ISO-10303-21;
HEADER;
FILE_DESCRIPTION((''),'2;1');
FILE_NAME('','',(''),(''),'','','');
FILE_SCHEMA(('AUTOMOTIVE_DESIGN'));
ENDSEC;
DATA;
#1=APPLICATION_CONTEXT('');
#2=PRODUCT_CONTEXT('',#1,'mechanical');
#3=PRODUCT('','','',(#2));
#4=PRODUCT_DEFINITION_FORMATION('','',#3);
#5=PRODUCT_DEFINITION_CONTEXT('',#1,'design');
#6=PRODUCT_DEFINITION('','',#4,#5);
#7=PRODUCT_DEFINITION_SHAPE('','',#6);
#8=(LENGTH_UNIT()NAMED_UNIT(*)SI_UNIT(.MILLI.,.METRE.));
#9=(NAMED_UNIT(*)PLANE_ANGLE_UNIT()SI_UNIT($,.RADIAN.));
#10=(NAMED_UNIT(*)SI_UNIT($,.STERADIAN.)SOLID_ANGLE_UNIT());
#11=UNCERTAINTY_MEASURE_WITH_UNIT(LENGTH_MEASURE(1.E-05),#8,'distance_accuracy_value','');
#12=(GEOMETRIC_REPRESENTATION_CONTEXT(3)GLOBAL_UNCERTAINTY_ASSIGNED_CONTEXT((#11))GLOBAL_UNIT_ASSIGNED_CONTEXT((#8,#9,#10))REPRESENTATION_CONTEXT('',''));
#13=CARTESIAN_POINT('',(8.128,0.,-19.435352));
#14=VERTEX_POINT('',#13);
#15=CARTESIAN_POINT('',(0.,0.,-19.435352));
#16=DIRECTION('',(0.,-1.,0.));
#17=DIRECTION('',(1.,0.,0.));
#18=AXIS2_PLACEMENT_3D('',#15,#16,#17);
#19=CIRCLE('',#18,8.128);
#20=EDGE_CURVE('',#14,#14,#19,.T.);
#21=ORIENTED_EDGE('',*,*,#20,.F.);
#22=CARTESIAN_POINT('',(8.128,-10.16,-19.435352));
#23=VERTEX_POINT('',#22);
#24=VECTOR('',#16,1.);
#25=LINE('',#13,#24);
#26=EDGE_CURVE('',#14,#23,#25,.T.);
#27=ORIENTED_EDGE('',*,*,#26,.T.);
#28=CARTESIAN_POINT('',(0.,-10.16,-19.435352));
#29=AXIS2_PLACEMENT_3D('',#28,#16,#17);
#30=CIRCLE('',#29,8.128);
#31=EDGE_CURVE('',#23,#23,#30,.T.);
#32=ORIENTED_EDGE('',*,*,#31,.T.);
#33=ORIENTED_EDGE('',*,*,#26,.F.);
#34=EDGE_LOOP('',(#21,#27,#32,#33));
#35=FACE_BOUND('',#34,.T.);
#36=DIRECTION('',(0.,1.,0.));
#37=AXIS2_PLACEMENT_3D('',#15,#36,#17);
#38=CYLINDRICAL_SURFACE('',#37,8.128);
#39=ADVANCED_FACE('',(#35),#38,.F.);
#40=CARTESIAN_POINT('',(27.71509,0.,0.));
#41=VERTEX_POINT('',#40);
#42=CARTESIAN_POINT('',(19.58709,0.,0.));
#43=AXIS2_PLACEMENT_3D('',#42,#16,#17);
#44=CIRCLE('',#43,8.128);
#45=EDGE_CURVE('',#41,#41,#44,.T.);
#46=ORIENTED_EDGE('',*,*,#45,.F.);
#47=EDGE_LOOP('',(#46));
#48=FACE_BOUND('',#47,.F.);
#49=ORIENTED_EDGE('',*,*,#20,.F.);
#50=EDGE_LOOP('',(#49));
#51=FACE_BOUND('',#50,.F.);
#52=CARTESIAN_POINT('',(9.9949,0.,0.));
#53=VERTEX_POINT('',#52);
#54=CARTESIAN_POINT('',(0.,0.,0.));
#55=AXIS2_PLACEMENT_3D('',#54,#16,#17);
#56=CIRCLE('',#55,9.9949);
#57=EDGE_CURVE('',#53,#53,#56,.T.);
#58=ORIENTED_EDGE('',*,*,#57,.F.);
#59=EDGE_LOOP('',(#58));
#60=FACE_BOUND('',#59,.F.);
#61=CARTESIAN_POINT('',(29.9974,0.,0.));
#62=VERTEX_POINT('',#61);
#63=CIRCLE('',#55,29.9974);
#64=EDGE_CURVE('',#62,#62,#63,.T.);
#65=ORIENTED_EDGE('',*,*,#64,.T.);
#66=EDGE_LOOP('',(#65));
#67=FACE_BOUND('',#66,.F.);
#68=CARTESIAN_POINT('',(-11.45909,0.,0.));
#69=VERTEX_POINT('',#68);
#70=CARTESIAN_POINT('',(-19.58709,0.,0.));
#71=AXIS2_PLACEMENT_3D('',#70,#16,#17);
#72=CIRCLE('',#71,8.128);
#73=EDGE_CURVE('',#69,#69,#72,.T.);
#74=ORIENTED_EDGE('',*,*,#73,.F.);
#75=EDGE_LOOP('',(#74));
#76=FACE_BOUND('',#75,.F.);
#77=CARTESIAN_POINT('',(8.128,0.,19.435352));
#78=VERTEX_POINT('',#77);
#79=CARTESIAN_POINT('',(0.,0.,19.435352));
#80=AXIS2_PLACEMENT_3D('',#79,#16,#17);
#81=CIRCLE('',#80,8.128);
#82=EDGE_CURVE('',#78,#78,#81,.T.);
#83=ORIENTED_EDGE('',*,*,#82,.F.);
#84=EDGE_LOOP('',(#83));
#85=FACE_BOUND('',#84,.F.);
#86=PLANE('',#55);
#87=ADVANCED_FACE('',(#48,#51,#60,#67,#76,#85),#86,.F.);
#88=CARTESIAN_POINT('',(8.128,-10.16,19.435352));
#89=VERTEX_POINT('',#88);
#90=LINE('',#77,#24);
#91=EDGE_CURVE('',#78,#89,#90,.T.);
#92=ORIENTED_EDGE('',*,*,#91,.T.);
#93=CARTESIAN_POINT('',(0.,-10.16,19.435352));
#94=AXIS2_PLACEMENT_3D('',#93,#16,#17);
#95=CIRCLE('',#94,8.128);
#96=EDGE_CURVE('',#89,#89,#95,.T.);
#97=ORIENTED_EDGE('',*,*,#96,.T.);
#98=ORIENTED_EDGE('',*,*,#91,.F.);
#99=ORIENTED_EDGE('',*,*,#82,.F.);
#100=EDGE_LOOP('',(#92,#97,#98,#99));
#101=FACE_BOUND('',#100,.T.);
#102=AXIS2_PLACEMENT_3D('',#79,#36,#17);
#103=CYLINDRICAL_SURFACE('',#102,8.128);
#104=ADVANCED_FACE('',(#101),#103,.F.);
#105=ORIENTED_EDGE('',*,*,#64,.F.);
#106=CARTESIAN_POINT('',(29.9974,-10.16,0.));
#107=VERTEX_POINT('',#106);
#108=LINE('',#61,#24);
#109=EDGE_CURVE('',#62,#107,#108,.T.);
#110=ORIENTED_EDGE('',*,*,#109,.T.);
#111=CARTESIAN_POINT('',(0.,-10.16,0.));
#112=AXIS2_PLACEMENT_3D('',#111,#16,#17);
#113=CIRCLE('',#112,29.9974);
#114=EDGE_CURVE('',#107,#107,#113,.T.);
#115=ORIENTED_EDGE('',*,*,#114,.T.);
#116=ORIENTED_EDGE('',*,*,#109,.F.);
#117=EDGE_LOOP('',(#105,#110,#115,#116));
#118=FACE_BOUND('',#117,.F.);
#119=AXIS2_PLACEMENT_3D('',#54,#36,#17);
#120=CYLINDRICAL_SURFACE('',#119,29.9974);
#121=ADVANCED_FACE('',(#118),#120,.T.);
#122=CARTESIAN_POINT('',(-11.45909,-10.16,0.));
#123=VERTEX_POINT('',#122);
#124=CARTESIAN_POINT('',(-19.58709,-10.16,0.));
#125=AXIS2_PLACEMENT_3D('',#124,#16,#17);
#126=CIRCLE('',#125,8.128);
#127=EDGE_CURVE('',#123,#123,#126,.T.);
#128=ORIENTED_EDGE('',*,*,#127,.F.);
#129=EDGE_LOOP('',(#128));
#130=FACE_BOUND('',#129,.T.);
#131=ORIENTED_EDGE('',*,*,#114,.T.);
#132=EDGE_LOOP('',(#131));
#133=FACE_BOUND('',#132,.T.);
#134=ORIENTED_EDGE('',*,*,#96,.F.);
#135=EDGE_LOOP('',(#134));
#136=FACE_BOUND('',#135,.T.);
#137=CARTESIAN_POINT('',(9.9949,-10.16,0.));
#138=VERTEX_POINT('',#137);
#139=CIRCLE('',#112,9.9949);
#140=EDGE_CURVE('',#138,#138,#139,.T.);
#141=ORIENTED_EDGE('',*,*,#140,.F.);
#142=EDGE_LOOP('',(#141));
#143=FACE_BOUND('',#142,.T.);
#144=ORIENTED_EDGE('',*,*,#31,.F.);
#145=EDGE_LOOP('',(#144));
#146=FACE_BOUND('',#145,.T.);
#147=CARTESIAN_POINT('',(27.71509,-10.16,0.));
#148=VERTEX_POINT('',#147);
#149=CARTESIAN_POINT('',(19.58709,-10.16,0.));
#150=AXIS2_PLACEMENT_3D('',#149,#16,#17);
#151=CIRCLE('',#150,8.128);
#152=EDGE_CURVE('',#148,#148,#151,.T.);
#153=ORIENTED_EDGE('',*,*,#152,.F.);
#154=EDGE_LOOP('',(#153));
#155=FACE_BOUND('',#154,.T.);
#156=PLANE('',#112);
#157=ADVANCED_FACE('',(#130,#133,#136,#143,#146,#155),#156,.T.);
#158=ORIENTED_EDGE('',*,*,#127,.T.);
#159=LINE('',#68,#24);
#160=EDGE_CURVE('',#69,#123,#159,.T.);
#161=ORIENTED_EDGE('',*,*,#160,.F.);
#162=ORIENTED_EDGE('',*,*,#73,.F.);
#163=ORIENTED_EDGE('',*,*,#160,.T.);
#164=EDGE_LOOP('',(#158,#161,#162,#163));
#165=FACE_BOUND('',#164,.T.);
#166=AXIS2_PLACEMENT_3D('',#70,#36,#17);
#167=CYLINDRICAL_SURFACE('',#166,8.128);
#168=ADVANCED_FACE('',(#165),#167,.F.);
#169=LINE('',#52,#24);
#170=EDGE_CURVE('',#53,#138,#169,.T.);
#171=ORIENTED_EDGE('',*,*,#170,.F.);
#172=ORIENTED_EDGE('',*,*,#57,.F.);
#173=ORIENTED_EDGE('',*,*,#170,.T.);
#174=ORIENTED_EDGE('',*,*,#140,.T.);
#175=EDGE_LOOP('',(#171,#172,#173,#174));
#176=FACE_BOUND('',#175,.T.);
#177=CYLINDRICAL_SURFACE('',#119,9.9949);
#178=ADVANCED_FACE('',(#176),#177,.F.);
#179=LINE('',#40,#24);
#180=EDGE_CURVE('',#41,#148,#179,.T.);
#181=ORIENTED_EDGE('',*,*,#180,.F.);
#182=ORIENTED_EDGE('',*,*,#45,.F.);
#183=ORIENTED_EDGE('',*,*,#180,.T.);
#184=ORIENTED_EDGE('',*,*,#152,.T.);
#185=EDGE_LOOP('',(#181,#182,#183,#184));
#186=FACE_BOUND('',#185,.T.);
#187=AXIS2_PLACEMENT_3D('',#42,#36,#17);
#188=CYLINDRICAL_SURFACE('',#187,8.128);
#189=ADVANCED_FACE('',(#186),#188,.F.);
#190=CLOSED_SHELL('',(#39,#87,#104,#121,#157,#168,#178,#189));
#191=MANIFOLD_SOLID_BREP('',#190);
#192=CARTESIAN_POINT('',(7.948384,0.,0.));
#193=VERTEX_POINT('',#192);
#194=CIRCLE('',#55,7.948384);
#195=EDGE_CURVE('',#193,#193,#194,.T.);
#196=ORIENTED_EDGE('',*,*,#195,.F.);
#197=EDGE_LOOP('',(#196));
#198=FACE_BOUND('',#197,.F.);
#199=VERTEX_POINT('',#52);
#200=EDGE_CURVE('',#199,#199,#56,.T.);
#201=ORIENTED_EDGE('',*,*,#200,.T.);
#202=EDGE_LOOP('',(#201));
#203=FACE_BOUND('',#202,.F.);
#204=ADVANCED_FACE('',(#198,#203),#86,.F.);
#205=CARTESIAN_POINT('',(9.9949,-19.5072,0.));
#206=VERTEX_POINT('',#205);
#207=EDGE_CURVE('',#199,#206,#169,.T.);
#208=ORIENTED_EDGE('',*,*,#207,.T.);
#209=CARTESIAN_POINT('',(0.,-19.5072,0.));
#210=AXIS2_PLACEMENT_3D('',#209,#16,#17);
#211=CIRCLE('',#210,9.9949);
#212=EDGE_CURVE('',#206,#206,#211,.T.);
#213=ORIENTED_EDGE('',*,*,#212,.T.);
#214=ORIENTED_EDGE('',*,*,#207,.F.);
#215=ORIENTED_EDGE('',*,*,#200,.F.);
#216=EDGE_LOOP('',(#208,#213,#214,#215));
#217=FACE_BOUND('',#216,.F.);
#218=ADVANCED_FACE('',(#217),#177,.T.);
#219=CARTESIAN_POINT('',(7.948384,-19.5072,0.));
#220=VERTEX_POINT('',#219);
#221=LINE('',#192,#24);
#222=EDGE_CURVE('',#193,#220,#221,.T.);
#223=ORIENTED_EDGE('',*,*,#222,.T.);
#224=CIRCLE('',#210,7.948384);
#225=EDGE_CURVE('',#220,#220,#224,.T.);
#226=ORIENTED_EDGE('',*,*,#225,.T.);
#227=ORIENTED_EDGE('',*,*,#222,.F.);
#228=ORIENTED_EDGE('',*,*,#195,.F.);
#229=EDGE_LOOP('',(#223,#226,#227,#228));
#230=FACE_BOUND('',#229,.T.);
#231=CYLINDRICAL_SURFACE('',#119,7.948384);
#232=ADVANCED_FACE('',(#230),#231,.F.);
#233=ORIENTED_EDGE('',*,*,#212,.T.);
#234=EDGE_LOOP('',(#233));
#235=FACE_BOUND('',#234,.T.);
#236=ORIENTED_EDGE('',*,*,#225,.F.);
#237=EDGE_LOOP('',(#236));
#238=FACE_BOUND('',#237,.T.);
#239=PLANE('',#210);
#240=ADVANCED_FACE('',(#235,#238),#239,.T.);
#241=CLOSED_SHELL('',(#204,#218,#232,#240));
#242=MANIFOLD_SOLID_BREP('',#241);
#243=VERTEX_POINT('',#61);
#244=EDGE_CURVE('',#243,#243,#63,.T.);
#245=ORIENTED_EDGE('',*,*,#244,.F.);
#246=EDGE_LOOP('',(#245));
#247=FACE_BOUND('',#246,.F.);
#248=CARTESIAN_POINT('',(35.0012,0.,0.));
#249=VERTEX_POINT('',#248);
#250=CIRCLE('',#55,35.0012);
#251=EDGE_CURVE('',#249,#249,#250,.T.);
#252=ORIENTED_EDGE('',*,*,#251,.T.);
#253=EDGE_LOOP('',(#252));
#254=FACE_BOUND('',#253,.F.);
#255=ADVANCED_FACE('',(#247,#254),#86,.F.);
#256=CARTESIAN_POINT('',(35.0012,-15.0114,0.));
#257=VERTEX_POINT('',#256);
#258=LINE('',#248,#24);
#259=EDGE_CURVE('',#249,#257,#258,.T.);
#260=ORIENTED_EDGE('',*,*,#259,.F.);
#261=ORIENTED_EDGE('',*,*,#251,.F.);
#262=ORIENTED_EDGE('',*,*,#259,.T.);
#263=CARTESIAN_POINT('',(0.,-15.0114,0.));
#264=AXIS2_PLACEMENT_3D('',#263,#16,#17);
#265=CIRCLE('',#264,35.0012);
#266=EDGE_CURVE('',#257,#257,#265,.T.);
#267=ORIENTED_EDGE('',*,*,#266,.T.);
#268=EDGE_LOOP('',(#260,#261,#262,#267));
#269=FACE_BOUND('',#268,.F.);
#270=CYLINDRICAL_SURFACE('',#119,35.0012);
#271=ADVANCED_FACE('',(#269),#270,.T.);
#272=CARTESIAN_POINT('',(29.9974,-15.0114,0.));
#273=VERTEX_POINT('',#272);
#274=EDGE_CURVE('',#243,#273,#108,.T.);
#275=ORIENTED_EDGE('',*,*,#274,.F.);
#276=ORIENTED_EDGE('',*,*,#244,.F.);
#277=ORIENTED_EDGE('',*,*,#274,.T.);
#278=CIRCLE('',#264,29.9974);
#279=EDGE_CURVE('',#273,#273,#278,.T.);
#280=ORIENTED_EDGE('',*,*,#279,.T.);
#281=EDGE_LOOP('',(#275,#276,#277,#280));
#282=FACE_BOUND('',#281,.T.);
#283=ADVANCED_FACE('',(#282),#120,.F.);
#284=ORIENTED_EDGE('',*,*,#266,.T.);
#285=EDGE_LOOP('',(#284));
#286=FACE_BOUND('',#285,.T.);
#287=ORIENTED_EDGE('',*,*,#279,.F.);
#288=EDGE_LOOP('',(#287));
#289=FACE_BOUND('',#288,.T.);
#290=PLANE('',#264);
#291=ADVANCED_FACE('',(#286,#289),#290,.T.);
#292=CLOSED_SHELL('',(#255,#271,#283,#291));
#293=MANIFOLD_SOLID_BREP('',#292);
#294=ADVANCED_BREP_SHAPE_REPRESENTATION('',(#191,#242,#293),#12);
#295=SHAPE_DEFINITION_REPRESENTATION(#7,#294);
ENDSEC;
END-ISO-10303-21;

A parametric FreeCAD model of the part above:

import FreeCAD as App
import Part
import Sketcher
from FreeCAD import Vector
Q = App.Units.Quantity

doc = App.newDocument("Part")
body = doc.addObject("PartDesign::Body", "Body")

sketch1 = body.newObject("Sketcher::SketchObject", "Sketch")
sketch1.AttachmentSupport = (doc.getObject("XZ_Plane"), [""])
sketch1.MapMode = "FlatFace"
sketch1.addGeometry([
    Part.Circle(Vector(0, 0, 0), Vector(0, 0, 1), 35),
    Part.Circle(Vector(0, 0, 0), Vector(0, 0, 1), 30),
], False)
sketch1.addConstraint([
    Sketcher.Constraint("Coincident", 0, 3, -1, 1),
    Sketcher.Constraint("Coincident", 1, 3, -1, 1),
    Sketcher.Constraint("Diameter", 0, Q("2.756 in")),
    Sketcher.Constraint("Diameter", 1, Q("2.362 in")),
])
pad1 = body.newObject("PartDesign::Pad", "Pad")
pad1.Profile = sketch1
pad1.Length = Q("0.591 in")
body2 = doc.addObject("PartDesign::Body", "Body001")

sketch2 = body2.newObject("Sketcher::SketchObject", "Sketch001")
sketch2.AttachmentSupport = (doc.getObject("XZ_Plane001"), [""])
sketch2.MapMode = "FlatFace"
sketch2.addGeometry([
    Part.Circle(Vector(0, 0, 0), Vector(0, 0, 1), 10),
    Part.Circle(Vector(0, 0, 0), Vector(0, 0, 1), 8),
], False)
sketch2.addConstraint([
    Sketcher.Constraint("Coincident", 0, 3, -1, 1),
    Sketcher.Constraint("Coincident", 1, 3, -1, 1),
    Sketcher.Constraint("Diameter", 0, Q("0.787 in")),
    Sketcher.Constraint("Diameter", 1, Q("15.896768 mm")),
])
pad2 = body2.newObject("PartDesign::Pad", "Pad001")
pad2.Profile = sketch2
pad2.Length = Q("0.768 in")
body3 = doc.addObject("PartDesign::Body", "Body002")

sketch3 = body3.newObject("Sketcher::SketchObject", "Sketch002")
sketch3.AttachmentSupport = (doc.getObject("XZ_Plane002"), [""])
sketch3.MapMode = "FlatFace"
sketch3.addGeometry([
    Part.Circle(Vector(0, 0, 0), Vector(0, 0, 1), 30),
    Part.Circle(Vector(-20, 0, 0), Vector(0, 0, 1), 8),
    Part.Circle(Vector(0, -19, 0), Vector(0, 0, 1), 8),
    Part.Circle(Vector(0, 0, 0), Vector(0, 0, 1), 10),
    Part.Circle(Vector(20, 0, 0), Vector(0, 0, 1), 8),
    Part.Circle(Vector(0, 19, 0), Vector(0, 0, 1), 8),
], False)
sketch3.addConstraint([
    Sketcher.Constraint("Coincident", 0, 3, -1, 1),
    Sketcher.Constraint("Coincident", 3, 3, -1, 1),
    Sketcher.Constraint("Equal", 1, 2),
    Sketcher.Constraint("Equal", 2, 4),
    Sketcher.Constraint("Equal", 4, 5),
    Sketcher.Constraint("Symmetric", 1, 3, 4, 3, -1, 1),
    Sketcher.Constraint("Symmetric", 2, 3, 5, 3, -1, 1),
    Sketcher.Constraint("PointOnObject", 1, 3, -1),
    Sketcher.Constraint("PointOnObject", 2, 3, -2),
    Sketcher.Constraint("Diameter", 1, Q("0.64 in")),
    Sketcher.Constraint("Diameter", 0, Q("2.362 in")),
    Sketcher.Constraint("Diameter", 3, Q("0.787 in")),
    Sketcher.Constraint("DistanceX", 1, 3, -1, 1, Q("19.58709 mm")),
    Sketcher.Constraint("DistanceY", 2, 3, -1, 1, Q("19.435352 mm")),
])
pad3 = body3.newObject("PartDesign::Pad", "Pad002")
pad3.Profile = sketch3
pad3.Length = Q("0.4 in")

doc.recompute()
